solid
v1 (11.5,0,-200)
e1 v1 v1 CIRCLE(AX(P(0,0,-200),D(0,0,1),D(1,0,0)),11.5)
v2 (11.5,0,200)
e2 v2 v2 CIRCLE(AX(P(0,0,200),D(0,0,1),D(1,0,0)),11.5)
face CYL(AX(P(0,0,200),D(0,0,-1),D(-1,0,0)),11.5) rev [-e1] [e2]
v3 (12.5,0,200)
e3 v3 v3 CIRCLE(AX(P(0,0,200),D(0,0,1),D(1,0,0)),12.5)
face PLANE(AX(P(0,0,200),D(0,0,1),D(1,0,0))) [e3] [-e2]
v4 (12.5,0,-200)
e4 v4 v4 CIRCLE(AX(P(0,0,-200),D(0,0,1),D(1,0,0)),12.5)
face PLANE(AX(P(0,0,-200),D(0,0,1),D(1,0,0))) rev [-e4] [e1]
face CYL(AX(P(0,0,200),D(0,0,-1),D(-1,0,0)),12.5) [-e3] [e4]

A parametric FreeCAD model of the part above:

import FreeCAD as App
import Part
import Sketcher
Q = App.Units.Quantity

doc = App.newDocument("Part")
body = doc.addObject("PartDesign::Body", "Body")

sketch1 = body.newObject("Sketcher::SketchObject", "Sketch")
sketch1.AttachmentSupport = (doc.getObject("XY_Plane"), [""])
sketch1.MapMode = "FlatFace"
sketch1.addGeometry([
    Part.Circle(App.Vector(0, 0, 0), App.Vector(0, 0, 1), 12),
    Part.Circle(App.Vector(0, 0, 0), App.Vector(0, 0, 1), 12),
], False)
sketch1.addConstraint([
    Sketcher.Constraint("Coincident", 0, 3, -1, 1),
    Sketcher.Constraint("Coincident", 1, 3, -1, 1),
    Sketcher.Constraint("Diameter", 0, Q("25 mm")),
    Sketcher.Constraint("Diameter", 1, Q("23 mm")),
])
pad1 = body.newObject("PartDesign::Pad", "Pad")
pad1.Profile = sketch1
pad1.Length = 400
pad1.Midplane = True

doc.recompute()
